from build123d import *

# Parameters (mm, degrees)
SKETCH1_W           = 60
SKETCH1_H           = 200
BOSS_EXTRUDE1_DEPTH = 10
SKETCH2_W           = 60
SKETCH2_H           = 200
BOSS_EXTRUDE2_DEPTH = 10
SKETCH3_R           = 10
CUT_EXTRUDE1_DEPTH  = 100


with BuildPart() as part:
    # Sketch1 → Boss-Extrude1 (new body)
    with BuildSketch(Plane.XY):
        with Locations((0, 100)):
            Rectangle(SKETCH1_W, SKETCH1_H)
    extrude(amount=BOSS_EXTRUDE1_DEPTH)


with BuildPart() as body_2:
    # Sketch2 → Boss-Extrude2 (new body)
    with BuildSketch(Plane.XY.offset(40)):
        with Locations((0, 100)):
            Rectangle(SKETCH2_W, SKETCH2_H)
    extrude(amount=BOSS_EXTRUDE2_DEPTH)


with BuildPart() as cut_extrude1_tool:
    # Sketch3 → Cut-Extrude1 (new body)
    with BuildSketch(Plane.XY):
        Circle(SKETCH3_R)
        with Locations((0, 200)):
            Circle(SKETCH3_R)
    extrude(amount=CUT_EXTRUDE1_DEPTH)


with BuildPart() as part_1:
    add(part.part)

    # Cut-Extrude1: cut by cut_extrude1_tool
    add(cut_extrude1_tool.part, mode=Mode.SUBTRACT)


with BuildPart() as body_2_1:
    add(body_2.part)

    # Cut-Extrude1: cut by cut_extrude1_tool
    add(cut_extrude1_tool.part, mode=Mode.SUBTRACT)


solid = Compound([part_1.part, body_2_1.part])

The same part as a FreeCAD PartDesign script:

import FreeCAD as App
import Part
import Sketcher
from FreeCAD import Vector
Q = App.Units.Quantity

doc = App.newDocument("Part")
body = doc.addObject("PartDesign::Body", "Body")

# Sketch on XY plane
sketch1 = body.newObject("Sketcher::SketchObject", "Sketch")
sketch1.AttachmentSupport = (doc.getObject("XY_Plane"), [""])
sketch1.MapMode = "FlatFace"
sketch1.addGeometry(Part.LineSegment(Vector(-30, 200, 0), Vector(-30, 0, 0)), False)
sketch1.addGeometry(Part.LineSegment(Vector(-30, 0, 0), Vector(30, 0, 0)), False)
sketch1.addGeometry(Part.LineSegment(Vector(30, 0, 0), Vector(30, 200, 0)), False)
sketch1.addGeometry(Part.LineSegment(Vector(30, 200, 0), Vector(-30, 200, 0)), False)
sketch1.addConstraint(Sketcher.Constraint("Coincident", 0, 2, 1, 1))
sketch1.addConstraint(Sketcher.Constraint("Coincident", 1, 2, 2, 1))
sketch1.addConstraint(Sketcher.Constraint("Coincident", 2, 2, 3, 1))
sketch1.addConstraint(Sketcher.Constraint("Coincident", 3, 2, 0, 1))
sketch1.addConstraint(Sketcher.Constraint("Vertical", 0))
sketch1.addConstraint(Sketcher.Constraint("Horizontal", 1))
sketch1.addConstraint(Sketcher.Constraint("Vertical", 2))
sketch1.addConstraint(Sketcher.Constraint("Horizontal", 3))
sketch1.addConstraint(Sketcher.Constraint("Symmetric", 0, 2, 1, 2, -1, 1))
sketch1.addConstraint(Sketcher.Constraint("DistanceX", 1, 1, 1, 2, Q("60 mm")))
sketch1.addConstraint(Sketcher.Constraint("DistanceY", 0, 2, 0, 1, Q("200 mm")))
pad1 = body.newObject("PartDesign::Pad", "Pad")
pad1.Profile = sketch1
pad1.Length = 10
body2 = doc.addObject("PartDesign::Body", "Body001")

# Sketch on XY plane
sketch2 = body2.newObject("Sketcher::SketchObject", "Sketch001")
sketch2.AttachmentSupport = (doc.getObject("XY_Plane001"), [""])
sketch2.MapMode = "FlatFace"
sketch2.AttachmentOffset = App.Placement(Vector(0, 0, 40), App.Rotation())
sketch2.addGeometry(Part.LineSegment(Vector(-30, 200, 0), Vector(-30, 0, 0)), False)
sketch2.addGeometry(Part.LineSegment(Vector(-30, 0, 0), Vector(30, 0, 0)), False)
sketch2.addGeometry(Part.LineSegment(Vector(30, 0, 0), Vector(30, 200, 0)), False)
sketch2.addGeometry(Part.LineSegment(Vector(30, 200, 0), Vector(-30, 200, 0)), False)
sketch2.addConstraint(Sketcher.Constraint("Coincident", 0, 2, 1, 1))
sketch2.addConstraint(Sketcher.Constraint("Coincident", 1, 2, 2, 1))
sketch2.addConstraint(Sketcher.Constraint("Coincident", 2, 2, 3, 1))
sketch2.addConstraint(Sketcher.Constraint("Coincident", 3, 2, 0, 1))
sketch2.addConstraint(Sketcher.Constraint("Vertical", 0))
sketch2.addConstraint(Sketcher.Constraint("Horizontal", 1))
sketch2.addConstraint(Sketcher.Constraint("Vertical", 2))
sketch2.addConstraint(Sketcher.Constraint("Horizontal", 3))
sketch2.addConstraint(Sketcher.Constraint("Symmetric", 0, 2, 1, 2, -1, 1))
sketch2.addConstraint(Sketcher.Constraint("DistanceX", 1, 1, 1, 2, Q("60 mm")))
sketch2.addConstraint(Sketcher.Constraint("DistanceY", 0, 2, 0, 1, Q("200 mm")))
pad2 = body2.newObject("PartDesign::Pad", "Pad001")
pad2.Profile = sketch2
pad2.Length = 10
body3 = doc.addObject("PartDesign::Body", "Body002")
body3.AllowCompound = True

# Sketch on XY plane
sketch3 = body3.newObject("Sketcher::SketchObject", "Sketch002")
sketch3.AttachmentSupport = (doc.getObject("XY_Plane002"), [""])
sketch3.MapMode = "FlatFace"
sketch3.addGeometry(Part.Circle(Vector(0, 0, 0), Vector(0, 0, 1), 10), False)
sketch3.addGeometry(Part.Circle(Vector(0, 200, 0), Vector(0, 0, 1), 10), False)
sketch3.addConstraint(Sketcher.Constraint("Coincident", 0, 3, -1, 1))
sketch3.addConstraint(Sketcher.Constraint("Equal", 0, 1))
sketch3.addConstraint(Sketcher.Constraint("PointOnObject", 1, 3, -2))
sketch3.addConstraint(Sketcher.Constraint("Diameter", 0, Q("20 mm")))
sketch3.addConstraint(Sketcher.Constraint("DistanceY", -1, 1, 1, 3, Q("200 mm")))
pad3 = body3.newObject("PartDesign::Pad", "Pad002")
pad3.Profile = sketch3
pad3.Length = 100
doc.recompute()

body4 = doc.addObject("PartDesign::Body", "Body003")
body4.BaseFeature = body3
boolean = body.newObject("PartDesign::Boolean", "Boolean")
boolean.Type = "Cut"
boolean.addObjects([body4])
doc.recompute()

boolean2 = body2.newObject("PartDesign::Boolean", "Boolean001")
boolean2.Type = "Cut"
boolean2.addObjects([body3])

doc.recompute()
